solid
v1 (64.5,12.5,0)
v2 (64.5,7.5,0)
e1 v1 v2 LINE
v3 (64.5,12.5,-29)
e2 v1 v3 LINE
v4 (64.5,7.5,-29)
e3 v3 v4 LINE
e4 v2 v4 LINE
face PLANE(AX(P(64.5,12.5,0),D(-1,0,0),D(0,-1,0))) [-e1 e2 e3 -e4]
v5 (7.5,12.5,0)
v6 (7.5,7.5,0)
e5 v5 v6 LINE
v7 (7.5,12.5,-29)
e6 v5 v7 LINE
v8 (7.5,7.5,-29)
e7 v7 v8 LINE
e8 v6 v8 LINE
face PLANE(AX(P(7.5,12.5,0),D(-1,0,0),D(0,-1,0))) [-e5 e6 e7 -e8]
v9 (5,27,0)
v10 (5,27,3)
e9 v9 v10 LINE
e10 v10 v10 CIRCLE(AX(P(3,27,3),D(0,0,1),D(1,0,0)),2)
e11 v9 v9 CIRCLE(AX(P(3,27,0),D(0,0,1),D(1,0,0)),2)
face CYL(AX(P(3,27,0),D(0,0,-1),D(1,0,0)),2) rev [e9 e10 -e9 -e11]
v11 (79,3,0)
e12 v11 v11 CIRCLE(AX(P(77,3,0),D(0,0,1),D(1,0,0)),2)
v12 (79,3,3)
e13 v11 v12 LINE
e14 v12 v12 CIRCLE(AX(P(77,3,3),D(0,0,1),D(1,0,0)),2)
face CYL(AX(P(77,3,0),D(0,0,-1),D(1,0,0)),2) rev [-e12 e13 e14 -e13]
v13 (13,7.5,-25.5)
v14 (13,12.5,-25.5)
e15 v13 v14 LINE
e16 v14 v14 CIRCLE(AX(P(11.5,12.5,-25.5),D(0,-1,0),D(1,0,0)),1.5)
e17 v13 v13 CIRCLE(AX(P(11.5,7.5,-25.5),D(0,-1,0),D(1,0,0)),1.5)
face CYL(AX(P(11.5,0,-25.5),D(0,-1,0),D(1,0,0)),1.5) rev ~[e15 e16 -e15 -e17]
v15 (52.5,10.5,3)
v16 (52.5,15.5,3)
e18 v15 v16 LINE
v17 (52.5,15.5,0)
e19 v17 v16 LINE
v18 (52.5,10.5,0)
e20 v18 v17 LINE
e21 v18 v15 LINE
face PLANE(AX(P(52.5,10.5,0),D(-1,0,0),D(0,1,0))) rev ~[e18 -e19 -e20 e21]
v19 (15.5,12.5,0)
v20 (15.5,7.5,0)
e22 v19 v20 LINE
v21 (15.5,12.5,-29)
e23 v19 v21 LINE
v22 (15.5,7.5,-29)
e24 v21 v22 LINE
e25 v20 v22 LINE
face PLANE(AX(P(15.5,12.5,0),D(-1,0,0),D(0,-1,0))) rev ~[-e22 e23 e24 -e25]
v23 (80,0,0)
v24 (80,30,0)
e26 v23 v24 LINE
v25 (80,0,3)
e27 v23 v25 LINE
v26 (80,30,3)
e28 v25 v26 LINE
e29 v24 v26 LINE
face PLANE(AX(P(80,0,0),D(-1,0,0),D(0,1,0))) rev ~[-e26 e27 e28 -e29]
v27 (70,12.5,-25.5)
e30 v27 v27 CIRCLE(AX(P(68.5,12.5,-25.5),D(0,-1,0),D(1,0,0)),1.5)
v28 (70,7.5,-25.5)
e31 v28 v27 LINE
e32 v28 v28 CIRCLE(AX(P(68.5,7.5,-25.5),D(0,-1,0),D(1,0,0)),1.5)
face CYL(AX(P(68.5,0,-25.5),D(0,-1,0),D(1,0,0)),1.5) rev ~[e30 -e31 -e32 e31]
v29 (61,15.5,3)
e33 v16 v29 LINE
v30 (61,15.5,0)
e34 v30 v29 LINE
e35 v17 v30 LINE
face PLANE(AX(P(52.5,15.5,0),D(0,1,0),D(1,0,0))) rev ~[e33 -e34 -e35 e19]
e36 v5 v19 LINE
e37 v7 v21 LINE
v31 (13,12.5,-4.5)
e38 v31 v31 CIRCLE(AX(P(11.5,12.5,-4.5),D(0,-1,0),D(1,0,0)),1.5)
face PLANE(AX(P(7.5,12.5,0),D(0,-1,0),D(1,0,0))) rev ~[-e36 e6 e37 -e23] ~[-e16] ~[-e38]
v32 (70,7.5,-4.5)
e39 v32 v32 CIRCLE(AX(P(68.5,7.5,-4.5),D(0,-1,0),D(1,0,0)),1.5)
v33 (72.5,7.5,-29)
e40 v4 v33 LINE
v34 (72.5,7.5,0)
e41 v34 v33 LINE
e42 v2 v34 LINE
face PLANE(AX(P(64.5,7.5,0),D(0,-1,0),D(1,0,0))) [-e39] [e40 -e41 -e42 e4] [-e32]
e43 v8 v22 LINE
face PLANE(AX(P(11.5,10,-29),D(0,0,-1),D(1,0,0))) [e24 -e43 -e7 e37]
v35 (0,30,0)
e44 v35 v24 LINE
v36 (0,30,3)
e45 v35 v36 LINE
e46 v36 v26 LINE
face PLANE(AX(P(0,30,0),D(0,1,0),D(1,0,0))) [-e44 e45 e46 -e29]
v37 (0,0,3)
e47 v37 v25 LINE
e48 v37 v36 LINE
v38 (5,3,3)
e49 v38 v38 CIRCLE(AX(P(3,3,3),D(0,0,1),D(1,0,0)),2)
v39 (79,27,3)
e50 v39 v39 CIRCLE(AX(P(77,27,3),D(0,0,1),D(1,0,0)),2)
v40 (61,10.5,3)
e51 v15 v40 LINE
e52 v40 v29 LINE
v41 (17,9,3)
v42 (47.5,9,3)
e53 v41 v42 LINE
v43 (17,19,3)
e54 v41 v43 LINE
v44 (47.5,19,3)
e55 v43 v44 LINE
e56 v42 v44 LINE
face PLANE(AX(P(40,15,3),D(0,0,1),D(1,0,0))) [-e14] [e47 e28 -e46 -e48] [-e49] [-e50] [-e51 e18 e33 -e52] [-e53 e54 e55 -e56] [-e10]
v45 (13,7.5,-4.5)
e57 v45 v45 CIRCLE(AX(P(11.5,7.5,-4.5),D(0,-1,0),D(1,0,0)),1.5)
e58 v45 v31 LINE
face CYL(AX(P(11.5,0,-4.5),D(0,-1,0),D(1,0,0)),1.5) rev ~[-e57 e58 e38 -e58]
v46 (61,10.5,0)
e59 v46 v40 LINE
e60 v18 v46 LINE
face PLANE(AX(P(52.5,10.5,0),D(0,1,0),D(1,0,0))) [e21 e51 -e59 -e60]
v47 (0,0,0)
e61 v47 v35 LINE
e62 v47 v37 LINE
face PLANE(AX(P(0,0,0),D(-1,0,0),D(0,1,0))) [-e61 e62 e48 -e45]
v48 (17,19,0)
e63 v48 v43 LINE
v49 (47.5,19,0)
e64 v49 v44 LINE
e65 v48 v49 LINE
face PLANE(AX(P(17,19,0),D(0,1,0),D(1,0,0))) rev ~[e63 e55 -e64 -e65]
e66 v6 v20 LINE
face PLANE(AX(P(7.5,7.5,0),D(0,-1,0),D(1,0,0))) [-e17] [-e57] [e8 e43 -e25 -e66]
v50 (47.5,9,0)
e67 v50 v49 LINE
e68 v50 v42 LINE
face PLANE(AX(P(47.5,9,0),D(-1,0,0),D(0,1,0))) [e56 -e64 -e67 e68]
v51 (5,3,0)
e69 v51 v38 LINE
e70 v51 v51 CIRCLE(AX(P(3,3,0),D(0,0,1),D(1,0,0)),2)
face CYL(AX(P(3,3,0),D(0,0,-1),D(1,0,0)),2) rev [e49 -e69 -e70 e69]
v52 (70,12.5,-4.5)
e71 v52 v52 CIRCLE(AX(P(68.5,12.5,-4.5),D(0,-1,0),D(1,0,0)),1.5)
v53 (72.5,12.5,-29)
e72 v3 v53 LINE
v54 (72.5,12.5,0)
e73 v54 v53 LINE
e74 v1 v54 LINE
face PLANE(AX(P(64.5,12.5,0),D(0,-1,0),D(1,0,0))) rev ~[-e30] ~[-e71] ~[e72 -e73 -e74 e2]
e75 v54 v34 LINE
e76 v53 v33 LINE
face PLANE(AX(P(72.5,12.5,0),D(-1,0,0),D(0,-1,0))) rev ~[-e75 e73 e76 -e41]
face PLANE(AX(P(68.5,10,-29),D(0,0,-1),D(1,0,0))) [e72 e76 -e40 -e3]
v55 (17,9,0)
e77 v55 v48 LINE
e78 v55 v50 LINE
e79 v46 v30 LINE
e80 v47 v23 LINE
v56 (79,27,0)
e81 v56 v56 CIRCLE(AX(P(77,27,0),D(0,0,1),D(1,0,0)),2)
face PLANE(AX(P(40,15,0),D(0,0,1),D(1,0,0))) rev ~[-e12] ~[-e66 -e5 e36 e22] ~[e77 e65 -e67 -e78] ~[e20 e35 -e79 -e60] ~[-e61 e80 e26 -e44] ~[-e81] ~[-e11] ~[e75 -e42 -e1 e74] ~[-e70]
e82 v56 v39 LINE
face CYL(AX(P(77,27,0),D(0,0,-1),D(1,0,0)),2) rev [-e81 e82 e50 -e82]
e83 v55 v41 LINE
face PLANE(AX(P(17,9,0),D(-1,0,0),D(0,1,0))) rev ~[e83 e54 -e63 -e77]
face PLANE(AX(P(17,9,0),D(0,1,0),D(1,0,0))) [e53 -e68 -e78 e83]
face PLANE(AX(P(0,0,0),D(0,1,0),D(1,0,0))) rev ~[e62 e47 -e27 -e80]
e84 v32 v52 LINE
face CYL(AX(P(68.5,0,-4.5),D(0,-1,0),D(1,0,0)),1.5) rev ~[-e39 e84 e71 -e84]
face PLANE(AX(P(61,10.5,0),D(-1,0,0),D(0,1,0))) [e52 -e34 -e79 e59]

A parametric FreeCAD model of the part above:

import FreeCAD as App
import Part
import Sketcher
Q = App.Units.Quantity

doc = App.newDocument("Part")
params = doc.addObject("Spreadsheet::Sheet", "Params")
for row, (alias, value) in enumerate([
    ("sketch1_diameter", "4 mm"),
    ("sketch1_width", "80 mm"),
    ("sketch1_height", "30 mm"),
    ("sketch1_height2", "10 mm"),
    ("sketch1_height3", "5 mm"),
    ("pad1_length", "3 mm"),
    ("sketch2_width", "8 mm"),
    ("sketch2_height", "5 mm"),
    ("pad2_length", "29 mm"),
    ("sketch3_diameter", "3 mm"),
], start=1):
    params.set(f"A{row}", alias)
    params.set(f"B{row}", "=" + value)
    params.setAlias(f"B{row}", alias)

body = doc.addObject("PartDesign::Body", "Body")

sketch1 = doc.addObject("Sketcher::SketchObject", "Sketch")
body.addObject(sketch1)
sketch1.AttachmentSupport = (doc.XY_Plane, [""])
sketch1.MapMode = "FlatFace"
sketch1.addGeometry([
    Part.LineSegment(App.Vector(0, 30, 0), App.Vector(0, 0, 0)),
    Part.LineSegment(App.Vector(0, 0, 0), App.Vector(80, 0, 0)),
    Part.LineSegment(App.Vector(80, 0, 0), App.Vector(80, 30, 0)),
    Part.LineSegment(App.Vector(80, 30, 0), App.Vector(0, 30, 0)),
    Part.Circle(App.Vector(3, 3, 0), App.Vector(0, 0, 1), 2),
    Part.LineSegment(App.Vector(47.5, 9, 0), App.Vector(17, 9, 0)),
    Part.LineSegment(App.Vector(17, 9, 0), App.Vector(17, 19, 0)),
    Part.LineSegment(App.Vector(17, 19, 0), App.Vector(47.5, 19, 0)),
    Part.LineSegment(App.Vector(47.5, 19, 0), App.Vector(47.5, 9, 0)),
    Part.Circle(App.Vector(77, 3, 0), App.Vector(0, 0, 1), 2),
    Part.LineSegment(App.Vector(61, 10.5, 0), App.Vector(52.5, 10.5, 0)),
    Part.LineSegment(App.Vector(52.5, 10.5, 0), App.Vector(52.5, 15.5, 0)),
    Part.LineSegment(App.Vector(52.5, 15.5, 0), App.Vector(61, 15.5, 0)),
    Part.LineSegment(App.Vector(61, 15.5, 0), App.Vector(61, 10.5, 0)),
    Part.Circle(App.Vector(3, 27, 0), App.Vector(0, 0, 1), 2),
    Part.Circle(App.Vector(77, 27, 0), App.Vector(0, 0, 1), 2),
], False)
sketch1.addConstraint([
    Sketcher.Constraint("Coincident", 0, 2, 1, 1),
    Sketcher.Constraint("Coincident", 1, 2, 2, 1),
    Sketcher.Constraint("Coincident", 2, 2, 3, 1),
    Sketcher.Constraint("Coincident", 3, 2, 0, 1),
    Sketcher.Constraint("Coincident", 5, 2, 6, 1),
    Sketcher.Constraint("Coincident", 6, 2, 7, 1),
    Sketcher.Constraint("Coincident", 7, 2, 8, 1),
    Sketcher.Constraint("Coincident", 8, 2, 5, 1),
    Sketcher.Constraint("Coincident", 10, 2, 11, 1),
    Sketcher.Constraint("Coincident", 11, 2, 12, 1),
    Sketcher.Constraint("Coincident", 12, 2, 13, 1),
    Sketcher.Constraint("Coincident", 13, 2, 10, 1),
    Sketcher.Constraint("Vertical", 0),
    Sketcher.Constraint("Horizontal", 1),
    Sketcher.Constraint("Vertical", 2),
    Sketcher.Constraint("Horizontal", 3),
    Sketcher.Constraint("Horizontal", 5),
    Sketcher.Constraint("Vertical", 6),
    Sketcher.Constraint("Horizontal", 7),
    Sketcher.Constraint("Vertical", 8),
    Sketcher.Constraint("Horizontal", 10),
    Sketcher.Constraint("Vertical", 11),
    Sketcher.Constraint("Horizontal", 12),
    Sketcher.Constraint("Vertical", 13),
    Sketcher.Constraint("Coincident", 0, 2, -1, 1),
    Sketcher.Constraint("Equal", 4, 9),
    Sketcher.Constraint("Equal", 9, 14),
    Sketcher.Constraint("Equal", 14, 15),
    Sketcher.Constraint("Horizontal", 4, 3, 9, 3),
    Sketcher.Constraint("Horizontal", 14, 3, 15, 3),
    Sketcher.Constraint("Vertical", 4, 3, 14, 3),
    Sketcher.Constraint("Vertical", 9, 3, 15, 3),
    Sketcher.Constraint("Diameter", 4, Q("4 mm")),
    Sketcher.Constraint("DistanceX", 1, 1, 1, 2, Q("80 mm")),
    Sketcher.Constraint("DistanceY", 0, 2, 0, 1, Q("30 mm")),
    Sketcher.Constraint("DistanceY", 6, 1, 6, 2, Q("10 mm")),
    Sketcher.Constraint("DistanceY", 11, 1, 11, 2, Q("5 mm")),
    Sketcher.Constraint("DistanceX", 5, 2, 5, 1, Q("30.5 mm")),
    Sketcher.Constraint("DistanceX", 10, 2, 10, 1, Q("8.5 mm")),
    Sketcher.Constraint("DistanceX", -1, 1, 4, 3, Q("3 mm")),
    Sketcher.Constraint("DistanceY", -1, 1, 4, 3, Q("3 mm")),
    Sketcher.Constraint("DistanceX", -1, 1, 9, 3, Q("77 mm")),
    Sketcher.Constraint("DistanceY", -1, 1, 14, 3, Q("27 mm")),
    Sketcher.Constraint("DistanceX", -1, 1, 5, 2, Q("17 mm")),
    Sketcher.Constraint("DistanceY", -1, 1, 5, 2, Q("9 mm")),
    Sketcher.Constraint("DistanceX", -1, 1, 12, 2, Q("61 mm")),
    Sketcher.Constraint("DistanceY", -1, 1, 10, 2, Q("10.5 mm")),
])
sketch1.setExpression("Constraints[32]", "Params.sketch1_diameter")
sketch1.setExpression("Constraints[33]", "Params.sketch1_width")
sketch1.setExpression("Constraints[34]", "Params.sketch1_height")
sketch1.setExpression("Constraints[35]", "Params.sketch1_height2")
sketch1.setExpression("Constraints[36]", "Params.sketch1_height3")
pad1 = doc.addObject("PartDesign::Pad", "Pad")
body.addObject(pad1)
pad1.Profile = sketch1
pad1.setExpression("Length", "Params.pad1_length")

sketch2 = doc.addObject("Sketcher::SketchObject", "Sketch001")
body.addObject(sketch2)
sketch2.AttachmentSupport = (doc.XY_Plane, [""])
sketch2.MapMode = "FlatFace"
sketch2.addGeometry([
    Part.LineSegment(App.Vector(7.5, 7.5, 0), App.Vector(7.5, 12.5, 0)),
    Part.LineSegment(App.Vector(7.5, 12.5, 0), App.Vector(15.5, 12.5, 0)),
    Part.LineSegment(App.Vector(15.5, 12.5, 0), App.Vector(15.5, 7.5, 0)),
    Part.LineSegment(App.Vector(15.5, 7.5, 0), App.Vector(7.5, 7.5, 0)),
    Part.LineSegment(App.Vector(64.5, 7.5, 0), App.Vector(64.5, 12.5, 0)),
    Part.LineSegment(App.Vector(64.5, 12.5, 0), App.Vector(72.5, 12.5, 0)),
    Part.LineSegment(App.Vector(72.5, 12.5, 0), App.Vector(72.5, 7.5, 0)),
    Part.LineSegment(App.Vector(72.5, 7.5, 0), App.Vector(64.5, 7.5, 0)),
], False)
sketch2.addConstraint([
    Sketcher.Constraint("Coincident", 0, 2, 1, 1),
    Sketcher.Constraint("Coincident", 1, 2, 2, 1),
    Sketcher.Constraint("Coincident", 2, 2, 3, 1),
    Sketcher.Constraint("Coincident", 3, 2, 0, 1),
    Sketcher.Constraint("Coincident", 4, 2, 5, 1),
    Sketcher.Constraint("Coincident", 5, 2, 6, 1),
    Sketcher.Constraint("Coincident", 6, 2, 7, 1),
    Sketcher.Constraint("Coincident", 7, 2, 4, 1),
    Sketcher.Constraint("Vertical", 0),
    Sketcher.Constraint("Horizontal", 1),
    Sketcher.Constraint("Vertical", 2),
    Sketcher.Constraint("Horizontal", 3),
    Sketcher.Constraint("Vertical", 4),
    Sketcher.Constraint("Horizontal", 5),
    Sketcher.Constraint("Vertical", 6),
    Sketcher.Constraint("Horizontal", 7),
    Sketcher.Constraint("Horizontal", 1, 2, 4, 2),
    Sketcher.Constraint("Horizontal", 3, 2, 6, 2),
    Sketcher.Constraint("Equal", 3, 5),
    Sketcher.Constraint("DistanceX", 1, 1, 1, 2, Q("8 mm")),
    Sketcher.Constraint("DistanceY", 0, 1, 0, 2, Q("5 mm")),
    Sketcher.Constraint("DistanceX", 1, 2, 4, 2, Q("49 mm")),
    Sketcher.Constraint("DistanceX", -1, 1, 0, 2, Q("7.5 mm")),
    Sketcher.Constraint("DistanceY", -1, 1, 0, 2, Q("12.5 mm")),
])
sketch2.setExpression("Constraints[19]", "Params.sketch2_width")
sketch2.setExpression("Constraints[20]", "Params.sketch2_height")
pad2 = doc.addObject("PartDesign::Pad", "Pad001")
body.addObject(pad2)
pad2.Profile = sketch2
pad2.setExpression("Length", "Params.pad2_length")
pad2.Reversed = True

sketch3 = doc.addObject("Sketcher::SketchObject", "Sketch002")
body.addObject(sketch3)
sketch3.AttachmentSupport = (doc.XZ_Plane, [""])
sketch3.MapMode = "FlatFace"
sketch3.addGeometry([
    Part.Circle(App.Vector(11.5, -4.5, 0), App.Vector(0, 0, 1), 1.5),
    Part.Circle(App.Vector(68.5, -4.5, 0), App.Vector(0, 0, 1), 1.5),
    Part.Circle(App.Vector(11.5, -25.5, 0), App.Vector(0, 0, 1), 1.5),
    Part.Circle(App.Vector(68.5, -25.5, 0), App.Vector(0, 0, 1), 1.5),
], False)
sketch3.addConstraint([
    Sketcher.Constraint("Equal", 0, 1),
    Sketcher.Constraint("Equal", 1, 2),
    Sketcher.Constraint("Equal", 2, 3),
    Sketcher.Constraint("Horizontal", 0, 3, 1, 3),
    Sketcher.Constraint("Horizontal", 2, 3, 3, 3),
    Sketcher.Constraint("Vertical", 0, 3, 2, 3),
    Sketcher.Constraint("Vertical", 1, 3, 3, 3),
    Sketcher.Constraint("Diameter", 0, Q("3 mm")),
    Sketcher.Constraint("DistanceX", 0, 3, 1, 3, Q("57 mm")),
    Sketcher.Constraint("DistanceY", 2, 3, 0, 3, Q("21 mm")),
    Sketcher.Constraint("DistanceX", -1, 1, 0, 3, Q("11.5 mm")),
    Sketcher.Constraint("DistanceY", 0, 3, -1, 1, Q("4.5 mm")),
])
sketch3.setExpression("Constraints[7]", "Params.sketch3_diameter")
pocket1 = doc.addObject("PartDesign::Pocket", "Pocket")
body.addObject(pocket1)
pocket1.Profile = sketch3
pocket1.Type = "ThroughAll"

doc.recompute()
